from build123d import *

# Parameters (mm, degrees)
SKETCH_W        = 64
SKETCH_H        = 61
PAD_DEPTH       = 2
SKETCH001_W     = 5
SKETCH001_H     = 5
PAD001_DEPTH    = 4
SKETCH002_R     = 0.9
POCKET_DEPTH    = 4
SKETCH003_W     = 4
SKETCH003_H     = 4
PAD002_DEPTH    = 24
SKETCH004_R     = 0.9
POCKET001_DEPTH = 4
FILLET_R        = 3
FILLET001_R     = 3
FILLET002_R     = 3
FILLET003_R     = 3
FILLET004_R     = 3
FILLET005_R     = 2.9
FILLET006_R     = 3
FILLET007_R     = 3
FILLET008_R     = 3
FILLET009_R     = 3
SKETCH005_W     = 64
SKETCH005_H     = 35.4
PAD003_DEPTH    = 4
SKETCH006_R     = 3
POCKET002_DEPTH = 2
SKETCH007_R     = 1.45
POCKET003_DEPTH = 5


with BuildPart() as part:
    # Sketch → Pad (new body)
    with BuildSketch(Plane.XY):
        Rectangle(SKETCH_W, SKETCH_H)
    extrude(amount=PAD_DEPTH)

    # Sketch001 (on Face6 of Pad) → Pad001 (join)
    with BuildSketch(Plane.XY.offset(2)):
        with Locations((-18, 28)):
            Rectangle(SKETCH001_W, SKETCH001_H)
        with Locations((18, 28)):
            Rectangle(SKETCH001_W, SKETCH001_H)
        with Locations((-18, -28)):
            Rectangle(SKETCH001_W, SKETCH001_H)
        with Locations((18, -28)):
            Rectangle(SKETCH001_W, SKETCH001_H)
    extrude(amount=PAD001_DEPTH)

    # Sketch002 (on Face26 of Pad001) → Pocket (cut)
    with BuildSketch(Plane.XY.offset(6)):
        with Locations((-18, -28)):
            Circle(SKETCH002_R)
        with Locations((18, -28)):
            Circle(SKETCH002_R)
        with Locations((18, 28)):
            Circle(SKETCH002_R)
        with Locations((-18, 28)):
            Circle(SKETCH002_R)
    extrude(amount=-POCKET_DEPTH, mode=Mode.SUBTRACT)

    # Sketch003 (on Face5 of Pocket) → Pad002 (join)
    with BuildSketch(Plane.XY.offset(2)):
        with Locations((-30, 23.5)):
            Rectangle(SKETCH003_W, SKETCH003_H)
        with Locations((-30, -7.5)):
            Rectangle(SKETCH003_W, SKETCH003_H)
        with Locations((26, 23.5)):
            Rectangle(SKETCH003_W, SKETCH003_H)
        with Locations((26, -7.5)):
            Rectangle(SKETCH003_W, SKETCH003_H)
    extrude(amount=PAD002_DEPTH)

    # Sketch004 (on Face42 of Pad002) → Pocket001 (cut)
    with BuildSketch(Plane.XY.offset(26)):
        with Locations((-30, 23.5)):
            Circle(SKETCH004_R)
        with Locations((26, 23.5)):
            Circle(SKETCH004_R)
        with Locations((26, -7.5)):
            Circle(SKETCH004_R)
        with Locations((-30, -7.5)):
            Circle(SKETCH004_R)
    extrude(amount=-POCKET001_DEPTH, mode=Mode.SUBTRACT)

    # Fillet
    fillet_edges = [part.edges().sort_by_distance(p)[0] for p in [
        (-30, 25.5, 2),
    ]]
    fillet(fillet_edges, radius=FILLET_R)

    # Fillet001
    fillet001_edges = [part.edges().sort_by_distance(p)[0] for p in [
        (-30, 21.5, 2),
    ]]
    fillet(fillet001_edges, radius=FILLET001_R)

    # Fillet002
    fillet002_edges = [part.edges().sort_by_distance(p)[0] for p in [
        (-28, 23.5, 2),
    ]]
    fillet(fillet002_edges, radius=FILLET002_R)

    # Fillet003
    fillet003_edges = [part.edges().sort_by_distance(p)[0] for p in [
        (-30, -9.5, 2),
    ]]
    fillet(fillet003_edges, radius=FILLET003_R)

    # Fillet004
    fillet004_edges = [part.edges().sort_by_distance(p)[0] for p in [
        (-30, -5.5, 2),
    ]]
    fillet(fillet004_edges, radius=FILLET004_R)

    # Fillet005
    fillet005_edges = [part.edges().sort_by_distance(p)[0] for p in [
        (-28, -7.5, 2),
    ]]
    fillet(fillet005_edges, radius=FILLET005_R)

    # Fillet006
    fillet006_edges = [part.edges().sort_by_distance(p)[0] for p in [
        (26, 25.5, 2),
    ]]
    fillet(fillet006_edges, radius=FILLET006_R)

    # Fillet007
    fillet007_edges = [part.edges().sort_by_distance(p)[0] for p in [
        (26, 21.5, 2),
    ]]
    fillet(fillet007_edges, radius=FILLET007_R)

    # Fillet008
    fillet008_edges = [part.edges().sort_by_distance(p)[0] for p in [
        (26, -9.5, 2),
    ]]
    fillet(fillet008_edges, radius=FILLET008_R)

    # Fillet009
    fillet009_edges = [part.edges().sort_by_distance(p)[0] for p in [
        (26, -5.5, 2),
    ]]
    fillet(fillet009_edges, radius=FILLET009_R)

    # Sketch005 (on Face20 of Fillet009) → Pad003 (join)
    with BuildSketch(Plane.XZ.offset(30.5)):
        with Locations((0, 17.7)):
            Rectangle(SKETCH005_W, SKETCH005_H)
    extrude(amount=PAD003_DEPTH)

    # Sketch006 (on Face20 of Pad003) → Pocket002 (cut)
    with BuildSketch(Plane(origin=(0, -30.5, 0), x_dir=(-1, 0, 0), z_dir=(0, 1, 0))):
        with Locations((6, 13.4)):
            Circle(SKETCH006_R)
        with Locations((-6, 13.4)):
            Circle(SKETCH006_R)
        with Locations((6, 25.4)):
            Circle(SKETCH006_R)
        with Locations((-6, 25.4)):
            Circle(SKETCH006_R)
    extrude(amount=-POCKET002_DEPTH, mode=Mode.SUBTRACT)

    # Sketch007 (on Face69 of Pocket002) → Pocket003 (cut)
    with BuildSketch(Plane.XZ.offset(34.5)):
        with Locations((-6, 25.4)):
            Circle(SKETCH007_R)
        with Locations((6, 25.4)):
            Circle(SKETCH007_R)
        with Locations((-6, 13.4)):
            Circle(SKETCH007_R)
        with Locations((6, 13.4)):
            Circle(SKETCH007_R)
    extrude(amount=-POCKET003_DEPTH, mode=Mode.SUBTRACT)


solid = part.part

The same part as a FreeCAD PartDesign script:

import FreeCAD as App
import Part
import Sketcher
Q = App.Units.Quantity


def edges_at(feature, points):
    """Names of the edges that pass closest to the given points."""
    edges = feature.Shape.Edges
    near = lambda p: min(range(len(edges)), key=lambda i: edges[i].distToShape(Part.Vertex(*p))[0])
    return sorted({f"Edge{near(p) + 1}" for p in points})


def add_polygon(sketch, points):
    """Adds a closed chain of lines whose ends are joined by coincident constraints."""
    first, n = sketch.GeometryCount, len(points)
    for a, b in zip(points, points[1:] + points[:1]):
        sketch.addGeometry(Part.LineSegment(App.Vector(*a, 0), App.Vector(*b, 0)), False)
    for i in range(n):
        sketch.addConstraint(Sketcher.Constraint("Coincident", first + i, 2, first + (i + 1) % n, 1))

doc = App.newDocument("Part")
body = doc.addObject("PartDesign::Body", "Body")

# Sketch on XY plane
sketch1 = doc.addObject("Sketcher::SketchObject", "Sketch")
body.addObject(sketch1)
sketch1.AttachmentSupport = (doc.XY_Plane, [""])
sketch1.MapMode = "FlatFace"
add_polygon(sketch1, [(-32, 30), (-32, -30), (32, -30), (32, 30)])  # lines 0-3
sketch1.addConstraint(Sketcher.Constraint("Vertical", 0))
sketch1.addConstraint(Sketcher.Constraint("Horizontal", 1))
sketch1.addConstraint(Sketcher.Constraint("Vertical", 2))
sketch1.addConstraint(Sketcher.Constraint("Horizontal", 3))
sketch1.addConstraint(Sketcher.Constraint("Symmetric", 0, 2, 2, 2, -1, 1))
sketch1.addConstraint(Sketcher.Constraint("DistanceX", 1, 1, 1, 2, Q("64 mm")))
sketch1.addConstraint(Sketcher.Constraint("DistanceY", 0, 2, 0, 1, Q("61 mm")))
pad1 = doc.addObject("PartDesign::Pad", "Pad")
body.addObject(pad1)
pad1.Profile = sketch1
pad1.Length = 2

# Sketch on XY plane
sketch2 = doc.addObject("Sketcher::SketchObject", "Sketch001")
body.addObject(sketch2)
sketch2.AttachmentSupport = (doc.XY_Plane, [""])
sketch2.MapMode = "FlatFace"
sketch2.AttachmentOffset = App.Placement(App.Vector(0, 0, 2), App.Rotation())
add_polygon(sketch2, [(-20, 30), (-20, 26), (-16, 26), (-16, 30)])  # lines 0-3
add_polygon(sketch2, [(16, 30), (16, 26), (20, 26), (20, 30)])  # lines 4-7
add_polygon(sketch2, [(-20, -26), (-20, -30), (-16, -30), (-16, -26)])  # lines 8-11
add_polygon(sketch2, [(16, -26), (16, -30), (20, -30), (20, -26)])  # lines 12-15
sketch2.addConstraint(Sketcher.Constraint("Vertical", 0))
sketch2.addConstraint(Sketcher.Constraint("Horizontal", 1))
sketch2.addConstraint(Sketcher.Constraint("Vertical", 2))
sketch2.addConstraint(Sketcher.Constraint("Horizontal", 3))
sketch2.addConstraint(Sketcher.Constraint("Vertical", 4))
sketch2.addConstraint(Sketcher.Constraint("Horizontal", 5))
sketch2.addConstraint(Sketcher.Constraint("Vertical", 6))
sketch2.addConstraint(Sketcher.Constraint("Horizontal", 7))
sketch2.addConstraint(Sketcher.Constraint("Vertical", 8))
sketch2.addConstraint(Sketcher.Constraint("Horizontal", 9))
sketch2.addConstraint(Sketcher.Constraint("Vertical", 10))
sketch2.addConstraint(Sketcher.Constraint("Horizontal", 11))
sketch2.addConstraint(Sketcher.Constraint("Vertical", 12))
sketch2.addConstraint(Sketcher.Constraint("Horizontal", 13))
sketch2.addConstraint(Sketcher.Constraint("Vertical", 14))
sketch2.addConstraint(Sketcher.Constraint("Horizontal", 15))
sketch2.addConstraint(Sketcher.Constraint("Symmetric", 6, 2, 8, 2, -1, 1))
sketch2.addConstraint(Sketcher.Constraint("Symmetric", 4, 2, 10, 2, -1, 1))
sketch2.addConstraint(Sketcher.Constraint("Symmetric", 2, 2, 12, 2, -1, 1))
sketch2.addConstraint(Sketcher.Constraint("Symmetric", 0, 2, 14, 2, -1, 1))
sketch2.addConstraint(Sketcher.Constraint("Symmetric", 1, 2, 4, 2, -2))
sketch2.addConstraint(Sketcher.Constraint("Symmetric", 3, 2, 6, 2, -2))
sketch2.addConstraint(Sketcher.Constraint("Equal", 15, 0))
sketch2.addConstraint(Sketcher.Constraint("DistanceX", 1, 1, 1, 2, Q("5 mm")))
sketch2.addConstraint(Sketcher.Constraint("DistanceX", 1, 2, 4, 2, Q("31 mm")))
sketch2.addConstraint(Sketcher.Constraint("DistanceY", 8, 2, 0, 2, Q("56 mm")))
pad2 = doc.addObject("PartDesign::Pad", "Pad001")
body.addObject(pad2)
pad2.Profile = sketch2
pad2.Length = 4

# Sketch on XY plane
sketch3 = doc.addObject("Sketcher::SketchObject", "Sketch002")
body.addObject(sketch3)
sketch3.AttachmentSupport = (doc.XY_Plane, [""])
sketch3.MapMode = "FlatFace"
sketch3.AttachmentOffset = App.Placement(App.Vector(0, 0, 6), App.Rotation())
sketch3.addGeometry(Part.Circle(App.Vector(-18, -28, 0), App.Vector(0, 0, 1), 0.9), False)
sketch3.addGeometry(Part.Circle(App.Vector(18, -28, 0), App.Vector(0, 0, 1), 0.9), False)
sketch3.addGeometry(Part.Circle(App.Vector(18, 28, 0), App.Vector(0, 0, 1), 0.9), False)
sketch3.addGeometry(Part.Circle(App.Vector(-18, 28, 0), App.Vector(0, 0, 1), 0.9), False)
sketch3.addConstraint(Sketcher.Constraint("Equal", 0, 1))
sketch3.addConstraint(Sketcher.Constraint("Equal", 1, 2))
sketch3.addConstraint(Sketcher.Constraint("Equal", 2, 3))
sketch3.addConstraint(Sketcher.Constraint("Symmetric", 0, 3, 2, 3, -1, 1))
sketch3.addConstraint(Sketcher.Constraint("Symmetric", 1, 3, 3, 3, -1, 1))
sketch3.addConstraint(Sketcher.Constraint("Symmetric", 0, 3, 1, 3, -2))
sketch3.addConstraint(Sketcher.Constraint("Diameter", 0, Q("1.8 mm")))
sketch3.addConstraint(Sketcher.Constraint("DistanceX", 0, 3, -1, 1, Q("18 mm")))
sketch3.addConstraint(Sketcher.Constraint("DistanceY", 0, 3, -1, 1, Q("28 mm")))
pocket1 = doc.addObject("PartDesign::Pocket", "Pocket")
body.addObject(pocket1)
pocket1.Profile = sketch3
pocket1.Length = 4

# Sketch on XY plane
sketch4 = doc.addObject("Sketcher::SketchObject", "Sketch003")
body.addObject(sketch4)
sketch4.AttachmentSupport = (doc.XY_Plane, [""])
sketch4.MapMode = "FlatFace"
sketch4.AttachmentOffset = App.Placement(App.Vector(0, 0, 2), App.Rotation())
add_polygon(sketch4, [(-32, 25.5), (-32, 21.5), (-28, 21.5), (-28, 25.5)])  # lines 0-3
add_polygon(sketch4, [(-32, -5.5), (-32, -9.5), (-28, -9.5), (-28, -5.5)])  # lines 4-7
add_polygon(sketch4, [(24, 25.5), (24, 21.5), (28, 21.5), (28, 25.5)])  # lines 8-11
add_polygon(sketch4, [(24, -5.5), (24, -9.5), (28, -9.5), (28, -5.5)])  # lines 12-15
sketch4.addConstraint(Sketcher.Constraint("Vertical", 0))
sketch4.addConstraint(Sketcher.Constraint("Horizontal", 1))
sketch4.addConstraint(Sketcher.Constraint("Vertical", 2))
sketch4.addConstraint(Sketcher.Constraint("Horizontal", 3))
sketch4.addConstraint(Sketcher.Constraint("Vertical", 4))
sketch4.addConstraint(Sketcher.Constraint("Horizontal", 5))
sketch4.addConstraint(Sketcher.Constraint("Vertical", 6))
sketch4.addConstraint(Sketcher.Constraint("Horizontal", 7))
sketch4.addConstraint(Sketcher.Constraint("Vertical", 8))
sketch4.addConstraint(Sketcher.Constraint("Horizontal", 9))
sketch4.addConstraint(Sketcher.Constraint("Vertical", 10))
sketch4.addConstraint(Sketcher.Constraint("Horizontal", 11))
sketch4.addConstraint(Sketcher.Constraint("Vertical", 12))
sketch4.addConstraint(Sketcher.Constraint("Horizontal", 13))
sketch4.addConstraint(Sketcher.Constraint("Vertical", 14))
sketch4.addConstraint(Sketcher.Constraint("Horizontal", 15))
sketch4.addConstraint(Sketcher.Constraint("Symmetric", 1, 2, 9, 2, -2))
sketch4.addConstraint(Sketcher.Constraint("Symmetric", 5, 2, 13, 2, -2))
sketch4.addConstraint(Sketcher.Constraint("Horizontal", 3, 2, 10, 2))
sketch4.addConstraint(Sketcher.Constraint("Horizontal", 7, 2, 14, 2))
sketch4.addConstraint(Sketcher.Constraint("Vertical", 3, 2, 4, 2))
sketch4.addConstraint(Sketcher.Constraint("Vertical", 2, 2, 5, 2))
sketch4.addConstraint(Sketcher.Constraint("Vertical", 11, 2, 12, 2))
sketch4.addConstraint(Sketcher.Constraint("Equal", 7, 9))
sketch4.addConstraint(Sketcher.Constraint("Equal", 15, 0))
sketch4.addConstraint(Sketcher.Constraint("Equal", 2, 4))
sketch4.addConstraint(Sketcher.Constraint("DistanceX", 1, 1, 1, 2, Q("4 mm")))
sketch4.addConstraint(Sketcher.Constraint("DistanceX", 0, 2, -1, 1, Q("32 mm")))
sketch4.addConstraint(Sketcher.Constraint("DistanceY", 4, 2, 0, 2, Q("31 mm")))
sketch4.addConstraint(Sketcher.Constraint("DistanceY", -1, 1, 0, 2, Q("21.5 mm")))
pad3 = doc.addObject("PartDesign::Pad", "Pad002")
body.addObject(pad3)
pad3.Profile = sketch4
pad3.Length = 24

# Sketch on XY plane
sketch5 = doc.addObject("Sketcher::SketchObject", "Sketch004")
body.addObject(sketch5)
sketch5.AttachmentSupport = (doc.XY_Plane, [""])
sketch5.MapMode = "FlatFace"
sketch5.AttachmentOffset = App.Placement(App.Vector(0, 0, 26), App.Rotation())
sketch5.addGeometry(Part.Circle(App.Vector(-30, 23.5, 0), App.Vector(0, 0, 1), 0.9), False)
sketch5.addGeometry(Part.Circle(App.Vector(26, 23.5, 0), App.Vector(0, 0, 1), 0.9), False)
sketch5.addGeometry(Part.Circle(App.Vector(26, -7.5, 0), App.Vector(0, 0, 1), 0.9), False)
sketch5.addGeometry(Part.Circle(App.Vector(-30, -7.5, 0), App.Vector(0, 0, 1), 0.9), False)
sketch5.addConstraint(Sketcher.Constraint("Equal", 0, 1))
sketch5.addConstraint(Sketcher.Constraint("Equal", 1, 2))
sketch5.addConstraint(Sketcher.Constraint("Equal", 2, 3))
sketch5.addConstraint(Sketcher.Constraint("Horizontal", 0, 3, 1, 3))
sketch5.addConstraint(Sketcher.Constraint("Horizontal", 2, 3, 3, 3))
sketch5.addConstraint(Sketcher.Constraint("Vertical", 1, 3, 2, 3))
sketch5.addConstraint(Sketcher.Constraint("Vertical", 0, 3, 3, 3))
sketch5.addConstraint(Sketcher.Constraint("Diameter", 0, Q("1.8 mm")))
sketch5.addConstraint(Sketcher.Constraint("DistanceX", 0, 3, -1, 1, Q("30 mm")))
sketch5.addConstraint(Sketcher.Constraint("DistanceX", -1, 1, 1, 3, Q("26 mm")))
sketch5.addConstraint(Sketcher.Constraint("DistanceY", 2, 3, 1, 3, Q("31 mm")))
sketch5.addConstraint(Sketcher.Constraint("DistanceY", -1, 1, 0, 3, Q("23.5 mm")))
pocket2 = doc.addObject("PartDesign::Pocket", "Pocket001")
body.addObject(pocket2)
pocket2.Profile = sketch5
pocket2.Length = 4
doc.recompute()

fillet = doc.addObject("PartDesign::Fillet", "Fillet")
body.addObject(fillet)
fillet.Base = (pocket2, edges_at(pocket2, [(-30, 25.5, 2)]))
fillet.Radius = 3
doc.recompute()

fillet2 = doc.addObject("PartDesign::Fillet", "Fillet001")
body.addObject(fillet2)
fillet2.Base = (fillet, edges_at(fillet, [(-30, 21.5, 2)]))
fillet2.Radius = 3
doc.recompute()

fillet3 = doc.addObject("PartDesign::Fillet", "Fillet002")
body.addObject(fillet3)
fillet3.Base = (fillet2, edges_at(fillet2, [(-28, 23.5, 2)]))
fillet3.Radius = 3
doc.recompute()

fillet4 = doc.addObject("PartDesign::Fillet", "Fillet003")
body.addObject(fillet4)
fillet4.Base = (fillet3, edges_at(fillet3, [(-30, -9.5, 2)]))
fillet4.Radius = 3
doc.recompute()

fillet5 = doc.addObject("PartDesign::Fillet", "Fillet004")
body.addObject(fillet5)
fillet5.Base = (fillet4, edges_at(fillet4, [(-30, -5.5, 2)]))
fillet5.Radius = 3
doc.recompute()

fillet6 = doc.addObject("PartDesign::Fillet", "Fillet005")
body.addObject(fillet6)
fillet6.Base = (fillet5, edges_at(fillet5, [(-28, -7.5, 2)]))
fillet6.Radius = 2.9
doc.recompute()

fillet7 = doc.addObject("PartDesign::Fillet", "Fillet006")
body.addObject(fillet7)
fillet7.Base = (fillet6, edges_at(fillet6, [(26, 25.5, 2)]))
fillet7.Radius = 3
doc.recompute()

fillet8 = doc.addObject("PartDesign::Fillet", "Fillet007")
body.addObject(fillet8)
fillet8.Base = (fillet7, edges_at(fillet7, [(26, 21.5, 2)]))
fillet8.Radius = 3
doc.recompute()

fillet9 = doc.addObject("PartDesign::Fillet", "Fillet008")
body.addObject(fillet9)
fillet9.Base = (fillet8, edges_at(fillet8, [(26, -9.5, 2)]))
fillet9.Radius = 3
doc.recompute()

fillet10 = doc.addObject("PartDesign::Fillet", "Fillet009")
body.addObject(fillet10)
fillet10.Base = (fillet9, edges_at(fillet9, [(26, -5.5, 2)]))
fillet10.Radius = 3

# Sketch on XZ plane
sketch6 = doc.addObject("Sketcher::SketchObject", "Sketch005")
body.addObject(sketch6)
sketch6.AttachmentSupport = (doc.XZ_Plane, [""])
sketch6.MapMode = "FlatFace"
sketch6.AttachmentOffset = App.Placement(App.Vector(0, 0, 30.5), App.Rotation())
add_polygon(sketch6, [(-32, 35), (-32, 0), (32, 0), (32, 35)])  # lines 0-3
sketch6.addConstraint(Sketcher.Constraint("Vertical", 0))
sketch6.addConstraint(Sketcher.Constraint("Horizontal", 1))
sketch6.addConstraint(Sketcher.Constraint("Vertical", 2))
sketch6.addConstraint(Sketcher.Constraint("Horizontal", 3))
sketch6.addConstraint(Sketcher.Constraint("Symmetric", 0, 2, 1, 2, -1, 1))
sketch6.addConstraint(Sketcher.Constraint("DistanceX", 1, 1, 1, 2, Q("64 mm")))
sketch6.addConstraint(Sketcher.Constraint("DistanceY", 0, 2, 0, 1, Q("35.4 mm")))
pad4 = doc.addObject("PartDesign::Pad", "Pad003")
body.addObject(pad4)
pad4.Profile = sketch6
pad4.Length = 4

# Sketch on XZ plane
sketch7 = doc.addObject("Sketcher::SketchObject", "Sketch006")
body.addObject(sketch7)
sketch7.AttachmentSupport = (doc.XZ_Plane, [""])
sketch7.MapMode = "FlatFace"
sketch7.AttachmentOffset = App.Placement(App.Vector(0, 0, 30.5), App.Rotation())
sketch7.addGeometry(Part.Circle(App.Vector(-6, 13.4, 0), App.Vector(0, 0, 1), 3), False)
sketch7.addGeometry(Part.Circle(App.Vector(6, 13.4, 0), App.Vector(0, 0, 1), 3), False)
sketch7.addGeometry(Part.Circle(App.Vector(-6, 25.4, 0), App.Vector(0, 0, 1), 3), False)
sketch7.addGeometry(Part.Circle(App.Vector(6, 25.4, 0), App.Vector(0, 0, 1), 3), False)
sketch7.addConstraint(Sketcher.Constraint("Equal", 0, 1))
sketch7.addConstraint(Sketcher.Constraint("Equal", 1, 2))
sketch7.addConstraint(Sketcher.Constraint("Equal", 2, 3))
sketch7.addConstraint(Sketcher.Constraint("Symmetric", 0, 3, 1, 3, -2))
sketch7.addConstraint(Sketcher.Constraint("Symmetric", 2, 3, 3, 3, -2))
sketch7.addConstraint(Sketcher.Constraint("Vertical", 0, 3, 2, 3))
sketch7.addConstraint(Sketcher.Constraint("Diameter", 0, Q("6 mm")))
sketch7.addConstraint(Sketcher.Constraint("DistanceX", 0, 3, -1, 1, Q("6 mm")))
sketch7.addConstraint(Sketcher.Constraint("DistanceY", 0, 3, 2, 3, Q("12 mm")))
sketch7.addConstraint(Sketcher.Constraint("DistanceY", -1, 1, 0, 3, Q("13.4 mm")))
pocket3 = doc.addObject("PartDesign::Pocket", "Pocket002")
body.addObject(pocket3)
pocket3.Profile = sketch7
pocket3.Length = 2
pocket3.Reversed = True

# Sketch on XZ plane
sketch8 = doc.addObject("Sketcher::SketchObject", "Sketch007")
body.addObject(sketch8)
sketch8.AttachmentSupport = (doc.XZ_Plane, [""])
sketch8.MapMode = "FlatFace"
sketch8.AttachmentOffset = App.Placement(App.Vector(0, 0, 34.5), App.Rotation())
sketch8.addGeometry(Part.Circle(App.Vector(-6, 25.4, 0), App.Vector(0, 0, 1), 1.4), False)
sketch8.addGeometry(Part.Circle(App.Vector(6, 25.4, 0), App.Vector(0, 0, 1), 1.4), False)
sketch8.addGeometry(Part.Circle(App.Vector(-6, 13.4, 0), App.Vector(0, 0, 1), 1.4), False)
sketch8.addGeometry(Part.Circle(App.Vector(6, 13.4, 0), App.Vector(0, 0, 1), 1.4), False)
sketch8.addConstraint(Sketcher.Constraint("Equal", 0, 1))
sketch8.addConstraint(Sketcher.Constraint("Equal", 1, 2))
sketch8.addConstraint(Sketcher.Constraint("Equal", 2, 3))
sketch8.addConstraint(Sketcher.Constraint("Symmetric", 0, 3, 1, 3, -2))
sketch8.addConstraint(Sketcher.Constraint("Symmetric", 2, 3, 3, 3, -2))
sketch8.addConstraint(Sketcher.Constraint("Vertical", 0, 3, 2, 3))
sketch8.addConstraint(Sketcher.Constraint("Diameter", 0, Q("2.9 mm")))
sketch8.addConstraint(Sketcher.Constraint("DistanceX", 0, 3, -1, 1, Q("6 mm")))
sketch8.addConstraint(Sketcher.Constraint("DistanceY", 2, 3, 0, 3, Q("12 mm")))
sketch8.addConstraint(Sketcher.Constraint("DistanceY", -1, 1, 0, 3, Q("25.4 mm")))
pocket4 = doc.addObject("PartDesign::Pocket", "Pocket003")
body.addObject(pocket4)
pocket4.Profile = sketch8
pocket4.Length = 5

doc.recompute()
